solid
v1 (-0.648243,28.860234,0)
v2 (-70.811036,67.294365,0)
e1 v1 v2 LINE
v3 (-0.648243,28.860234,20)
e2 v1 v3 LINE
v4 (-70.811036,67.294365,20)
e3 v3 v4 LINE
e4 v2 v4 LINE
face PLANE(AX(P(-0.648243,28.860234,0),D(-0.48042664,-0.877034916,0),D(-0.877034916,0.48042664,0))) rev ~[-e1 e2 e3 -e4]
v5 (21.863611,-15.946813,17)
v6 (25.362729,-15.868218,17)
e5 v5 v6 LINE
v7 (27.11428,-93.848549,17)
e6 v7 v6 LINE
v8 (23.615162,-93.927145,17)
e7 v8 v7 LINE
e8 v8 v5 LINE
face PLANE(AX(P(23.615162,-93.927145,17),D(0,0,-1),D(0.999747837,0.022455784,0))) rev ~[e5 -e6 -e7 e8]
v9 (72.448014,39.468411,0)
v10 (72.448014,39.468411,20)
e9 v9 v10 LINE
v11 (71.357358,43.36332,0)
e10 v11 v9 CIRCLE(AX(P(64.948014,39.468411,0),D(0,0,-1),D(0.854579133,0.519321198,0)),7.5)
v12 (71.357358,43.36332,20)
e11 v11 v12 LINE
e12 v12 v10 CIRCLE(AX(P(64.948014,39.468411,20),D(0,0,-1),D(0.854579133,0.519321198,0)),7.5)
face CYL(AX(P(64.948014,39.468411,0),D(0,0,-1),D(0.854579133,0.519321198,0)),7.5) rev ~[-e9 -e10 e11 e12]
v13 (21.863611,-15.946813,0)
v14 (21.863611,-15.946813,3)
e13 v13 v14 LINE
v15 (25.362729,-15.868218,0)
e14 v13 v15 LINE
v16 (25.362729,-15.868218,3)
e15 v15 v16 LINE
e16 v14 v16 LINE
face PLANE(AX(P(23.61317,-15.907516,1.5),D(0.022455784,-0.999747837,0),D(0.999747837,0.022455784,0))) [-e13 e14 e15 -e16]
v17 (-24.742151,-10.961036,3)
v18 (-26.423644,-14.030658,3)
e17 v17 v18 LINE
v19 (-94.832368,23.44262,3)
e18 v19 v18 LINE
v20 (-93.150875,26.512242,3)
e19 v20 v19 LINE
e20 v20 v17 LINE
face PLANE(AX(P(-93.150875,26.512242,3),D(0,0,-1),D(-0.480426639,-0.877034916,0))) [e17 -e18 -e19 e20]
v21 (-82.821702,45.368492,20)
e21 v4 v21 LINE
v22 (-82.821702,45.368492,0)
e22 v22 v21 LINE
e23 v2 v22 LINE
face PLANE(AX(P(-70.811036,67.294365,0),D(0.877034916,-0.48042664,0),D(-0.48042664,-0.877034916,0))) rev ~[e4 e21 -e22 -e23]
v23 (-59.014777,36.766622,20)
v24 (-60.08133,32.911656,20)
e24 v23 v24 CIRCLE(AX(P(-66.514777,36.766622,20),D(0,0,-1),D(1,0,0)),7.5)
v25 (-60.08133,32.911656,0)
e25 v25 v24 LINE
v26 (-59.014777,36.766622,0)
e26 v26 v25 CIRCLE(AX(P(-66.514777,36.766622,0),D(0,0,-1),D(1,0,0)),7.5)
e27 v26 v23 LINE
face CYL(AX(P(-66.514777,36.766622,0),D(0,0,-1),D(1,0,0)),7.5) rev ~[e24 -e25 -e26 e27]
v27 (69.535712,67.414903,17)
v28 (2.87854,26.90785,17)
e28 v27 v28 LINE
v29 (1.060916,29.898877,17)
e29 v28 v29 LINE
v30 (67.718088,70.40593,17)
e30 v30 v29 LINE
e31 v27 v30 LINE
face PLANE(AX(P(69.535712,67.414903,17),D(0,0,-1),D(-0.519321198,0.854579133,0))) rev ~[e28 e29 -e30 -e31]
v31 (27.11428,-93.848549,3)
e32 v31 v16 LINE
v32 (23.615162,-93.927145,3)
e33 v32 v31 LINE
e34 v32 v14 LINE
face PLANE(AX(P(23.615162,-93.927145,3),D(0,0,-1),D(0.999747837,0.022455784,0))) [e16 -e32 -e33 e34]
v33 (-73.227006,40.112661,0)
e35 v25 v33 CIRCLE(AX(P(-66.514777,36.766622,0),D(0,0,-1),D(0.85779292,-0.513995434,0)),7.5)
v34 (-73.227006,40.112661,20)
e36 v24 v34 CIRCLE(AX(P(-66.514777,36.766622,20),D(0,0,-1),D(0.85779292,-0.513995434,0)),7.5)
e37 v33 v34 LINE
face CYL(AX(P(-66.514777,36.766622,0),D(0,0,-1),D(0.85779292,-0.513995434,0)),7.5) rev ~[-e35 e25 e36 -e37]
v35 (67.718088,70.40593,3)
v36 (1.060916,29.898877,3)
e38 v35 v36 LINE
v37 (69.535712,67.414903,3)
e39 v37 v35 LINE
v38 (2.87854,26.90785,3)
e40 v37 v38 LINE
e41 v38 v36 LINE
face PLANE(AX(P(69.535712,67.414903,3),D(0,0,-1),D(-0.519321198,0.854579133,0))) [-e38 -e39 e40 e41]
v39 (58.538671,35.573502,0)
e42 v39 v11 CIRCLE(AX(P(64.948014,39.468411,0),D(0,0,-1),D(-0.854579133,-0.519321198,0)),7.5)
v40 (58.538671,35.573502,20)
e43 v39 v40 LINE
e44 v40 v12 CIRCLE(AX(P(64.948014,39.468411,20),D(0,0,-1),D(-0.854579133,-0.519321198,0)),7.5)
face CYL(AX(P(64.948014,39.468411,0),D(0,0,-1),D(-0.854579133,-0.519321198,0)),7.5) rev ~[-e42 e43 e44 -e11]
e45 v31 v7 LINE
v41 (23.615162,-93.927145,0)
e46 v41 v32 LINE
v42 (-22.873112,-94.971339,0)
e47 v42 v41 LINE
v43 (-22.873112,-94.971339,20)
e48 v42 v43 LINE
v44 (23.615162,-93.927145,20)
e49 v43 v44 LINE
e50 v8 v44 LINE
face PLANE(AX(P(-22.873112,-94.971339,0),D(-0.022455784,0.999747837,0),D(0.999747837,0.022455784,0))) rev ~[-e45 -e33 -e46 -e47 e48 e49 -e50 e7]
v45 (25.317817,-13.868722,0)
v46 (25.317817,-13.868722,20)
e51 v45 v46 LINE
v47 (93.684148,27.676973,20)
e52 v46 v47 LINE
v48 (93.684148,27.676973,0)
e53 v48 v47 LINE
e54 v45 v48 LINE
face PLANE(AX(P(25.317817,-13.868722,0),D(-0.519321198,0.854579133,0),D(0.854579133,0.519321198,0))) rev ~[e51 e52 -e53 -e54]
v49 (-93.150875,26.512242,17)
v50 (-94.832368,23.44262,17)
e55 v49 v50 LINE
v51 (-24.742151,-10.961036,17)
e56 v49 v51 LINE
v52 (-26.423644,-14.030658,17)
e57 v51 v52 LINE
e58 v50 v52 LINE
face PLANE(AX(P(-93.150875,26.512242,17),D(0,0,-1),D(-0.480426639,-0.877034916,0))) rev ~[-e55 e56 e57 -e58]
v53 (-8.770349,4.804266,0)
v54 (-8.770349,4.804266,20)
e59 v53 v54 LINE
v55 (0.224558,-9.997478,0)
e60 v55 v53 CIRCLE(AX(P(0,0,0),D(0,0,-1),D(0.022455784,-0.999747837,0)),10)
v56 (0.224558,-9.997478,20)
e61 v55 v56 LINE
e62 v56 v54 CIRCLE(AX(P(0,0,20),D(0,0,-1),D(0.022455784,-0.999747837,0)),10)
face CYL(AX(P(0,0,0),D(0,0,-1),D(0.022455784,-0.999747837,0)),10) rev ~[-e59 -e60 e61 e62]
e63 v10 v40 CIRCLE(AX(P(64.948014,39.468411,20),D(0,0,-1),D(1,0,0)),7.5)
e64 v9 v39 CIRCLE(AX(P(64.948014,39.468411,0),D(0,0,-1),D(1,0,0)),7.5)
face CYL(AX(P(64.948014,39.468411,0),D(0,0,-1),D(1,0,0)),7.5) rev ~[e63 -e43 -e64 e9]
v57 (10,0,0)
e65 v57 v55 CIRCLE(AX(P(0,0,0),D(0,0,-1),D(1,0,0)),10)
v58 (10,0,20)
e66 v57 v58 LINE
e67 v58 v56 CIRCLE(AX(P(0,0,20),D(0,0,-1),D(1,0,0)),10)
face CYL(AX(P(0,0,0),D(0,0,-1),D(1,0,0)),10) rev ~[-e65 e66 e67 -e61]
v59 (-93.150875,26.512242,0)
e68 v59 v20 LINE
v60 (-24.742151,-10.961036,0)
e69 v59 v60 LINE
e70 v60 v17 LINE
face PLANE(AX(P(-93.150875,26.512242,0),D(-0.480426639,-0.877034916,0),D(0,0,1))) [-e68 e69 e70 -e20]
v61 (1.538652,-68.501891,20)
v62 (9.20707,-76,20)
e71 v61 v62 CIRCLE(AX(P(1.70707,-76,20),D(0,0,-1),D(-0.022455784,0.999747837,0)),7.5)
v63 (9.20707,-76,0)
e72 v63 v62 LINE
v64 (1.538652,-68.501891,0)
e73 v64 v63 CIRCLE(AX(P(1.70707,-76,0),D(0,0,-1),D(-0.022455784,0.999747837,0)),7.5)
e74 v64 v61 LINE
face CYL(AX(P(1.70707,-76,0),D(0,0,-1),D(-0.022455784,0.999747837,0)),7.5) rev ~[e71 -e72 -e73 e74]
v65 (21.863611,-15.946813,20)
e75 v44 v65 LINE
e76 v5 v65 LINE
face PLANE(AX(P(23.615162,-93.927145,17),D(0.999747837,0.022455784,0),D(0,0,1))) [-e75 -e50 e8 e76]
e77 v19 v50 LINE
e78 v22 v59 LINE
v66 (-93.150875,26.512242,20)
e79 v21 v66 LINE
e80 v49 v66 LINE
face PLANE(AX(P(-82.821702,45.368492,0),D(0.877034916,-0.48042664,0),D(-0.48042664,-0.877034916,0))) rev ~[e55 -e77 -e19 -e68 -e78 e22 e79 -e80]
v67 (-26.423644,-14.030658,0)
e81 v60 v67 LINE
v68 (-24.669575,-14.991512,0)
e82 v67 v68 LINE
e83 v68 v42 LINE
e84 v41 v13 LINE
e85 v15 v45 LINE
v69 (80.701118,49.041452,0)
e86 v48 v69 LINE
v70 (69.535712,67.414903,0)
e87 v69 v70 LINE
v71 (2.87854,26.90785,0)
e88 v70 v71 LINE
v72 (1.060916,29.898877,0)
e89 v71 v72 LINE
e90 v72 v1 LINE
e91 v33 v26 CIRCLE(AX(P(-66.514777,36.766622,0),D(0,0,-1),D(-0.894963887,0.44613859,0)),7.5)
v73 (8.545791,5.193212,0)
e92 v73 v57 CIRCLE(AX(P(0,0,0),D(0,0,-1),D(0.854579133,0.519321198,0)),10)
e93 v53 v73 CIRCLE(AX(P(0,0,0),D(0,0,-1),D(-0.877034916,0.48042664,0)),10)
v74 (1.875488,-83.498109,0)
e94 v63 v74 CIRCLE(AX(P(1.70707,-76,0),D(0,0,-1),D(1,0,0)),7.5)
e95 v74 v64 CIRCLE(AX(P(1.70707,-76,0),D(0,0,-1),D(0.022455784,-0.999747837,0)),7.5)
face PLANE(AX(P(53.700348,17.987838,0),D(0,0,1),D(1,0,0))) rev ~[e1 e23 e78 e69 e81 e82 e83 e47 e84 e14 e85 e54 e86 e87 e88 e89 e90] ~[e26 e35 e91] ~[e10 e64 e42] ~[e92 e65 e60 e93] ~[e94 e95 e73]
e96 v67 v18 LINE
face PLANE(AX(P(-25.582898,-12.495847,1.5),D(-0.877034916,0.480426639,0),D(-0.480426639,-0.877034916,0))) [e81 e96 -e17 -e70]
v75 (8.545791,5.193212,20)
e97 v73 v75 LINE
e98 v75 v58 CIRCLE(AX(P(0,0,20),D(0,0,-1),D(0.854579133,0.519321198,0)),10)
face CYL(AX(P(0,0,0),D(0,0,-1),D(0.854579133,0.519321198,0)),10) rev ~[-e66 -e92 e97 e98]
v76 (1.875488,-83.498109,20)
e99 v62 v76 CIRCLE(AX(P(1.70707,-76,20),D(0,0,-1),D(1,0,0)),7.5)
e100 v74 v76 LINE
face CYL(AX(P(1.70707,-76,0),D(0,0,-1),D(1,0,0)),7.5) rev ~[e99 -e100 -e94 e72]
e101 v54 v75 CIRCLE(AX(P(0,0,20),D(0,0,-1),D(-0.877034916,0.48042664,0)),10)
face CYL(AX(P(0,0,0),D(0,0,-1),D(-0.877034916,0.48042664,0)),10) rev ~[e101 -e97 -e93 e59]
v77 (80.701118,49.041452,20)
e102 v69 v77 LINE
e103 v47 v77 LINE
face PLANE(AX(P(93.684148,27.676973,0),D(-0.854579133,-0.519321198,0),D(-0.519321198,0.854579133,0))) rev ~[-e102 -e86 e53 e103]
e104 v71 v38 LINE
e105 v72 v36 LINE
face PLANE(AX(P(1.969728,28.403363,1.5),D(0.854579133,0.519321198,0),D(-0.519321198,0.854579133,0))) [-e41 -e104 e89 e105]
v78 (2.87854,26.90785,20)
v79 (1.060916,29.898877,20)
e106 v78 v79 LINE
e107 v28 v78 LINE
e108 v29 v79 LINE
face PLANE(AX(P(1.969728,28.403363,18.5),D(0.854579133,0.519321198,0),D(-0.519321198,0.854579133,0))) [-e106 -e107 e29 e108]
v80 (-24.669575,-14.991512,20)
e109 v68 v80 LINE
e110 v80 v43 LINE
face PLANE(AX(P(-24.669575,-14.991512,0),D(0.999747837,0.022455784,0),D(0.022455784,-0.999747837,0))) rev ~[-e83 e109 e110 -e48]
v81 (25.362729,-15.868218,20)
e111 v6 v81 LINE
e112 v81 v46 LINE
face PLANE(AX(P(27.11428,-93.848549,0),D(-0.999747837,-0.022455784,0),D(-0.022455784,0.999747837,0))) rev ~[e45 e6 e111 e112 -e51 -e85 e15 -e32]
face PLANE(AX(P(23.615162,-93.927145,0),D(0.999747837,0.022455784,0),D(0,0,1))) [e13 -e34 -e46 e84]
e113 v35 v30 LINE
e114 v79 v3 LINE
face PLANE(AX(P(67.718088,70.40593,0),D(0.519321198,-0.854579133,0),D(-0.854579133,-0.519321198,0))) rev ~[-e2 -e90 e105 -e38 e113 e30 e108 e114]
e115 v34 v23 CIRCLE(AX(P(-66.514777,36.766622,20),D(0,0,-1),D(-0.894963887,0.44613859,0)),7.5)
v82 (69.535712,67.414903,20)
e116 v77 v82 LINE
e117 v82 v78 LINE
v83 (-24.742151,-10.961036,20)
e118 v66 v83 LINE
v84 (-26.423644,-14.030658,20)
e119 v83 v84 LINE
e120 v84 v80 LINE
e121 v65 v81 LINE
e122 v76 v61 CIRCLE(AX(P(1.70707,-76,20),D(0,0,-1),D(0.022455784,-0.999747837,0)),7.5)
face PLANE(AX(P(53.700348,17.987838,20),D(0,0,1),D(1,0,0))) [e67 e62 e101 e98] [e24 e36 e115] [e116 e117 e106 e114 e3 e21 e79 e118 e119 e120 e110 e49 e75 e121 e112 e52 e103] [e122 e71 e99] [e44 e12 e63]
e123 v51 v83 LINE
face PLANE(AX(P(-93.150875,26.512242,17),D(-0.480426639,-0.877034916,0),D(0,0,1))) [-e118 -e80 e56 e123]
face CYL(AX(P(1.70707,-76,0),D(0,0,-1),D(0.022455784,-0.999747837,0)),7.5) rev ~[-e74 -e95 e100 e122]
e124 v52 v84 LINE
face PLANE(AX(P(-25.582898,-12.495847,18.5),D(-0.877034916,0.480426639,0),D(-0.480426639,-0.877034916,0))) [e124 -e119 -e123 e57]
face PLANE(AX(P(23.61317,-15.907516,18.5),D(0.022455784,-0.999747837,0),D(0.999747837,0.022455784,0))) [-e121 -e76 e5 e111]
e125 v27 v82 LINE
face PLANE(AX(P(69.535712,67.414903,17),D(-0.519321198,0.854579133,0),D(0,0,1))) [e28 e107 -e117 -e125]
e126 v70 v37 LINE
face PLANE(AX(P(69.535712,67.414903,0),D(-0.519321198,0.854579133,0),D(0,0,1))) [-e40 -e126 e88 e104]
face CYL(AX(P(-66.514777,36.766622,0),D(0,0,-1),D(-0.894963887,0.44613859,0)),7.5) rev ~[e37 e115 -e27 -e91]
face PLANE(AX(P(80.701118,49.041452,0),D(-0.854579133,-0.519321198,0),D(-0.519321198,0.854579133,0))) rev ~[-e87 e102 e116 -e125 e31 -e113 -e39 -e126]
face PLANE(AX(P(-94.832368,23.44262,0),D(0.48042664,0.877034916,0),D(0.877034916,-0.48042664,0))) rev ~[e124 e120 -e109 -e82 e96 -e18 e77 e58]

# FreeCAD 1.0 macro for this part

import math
import FreeCAD as App
import Part
import Sketcher
from FreeCAD import Vector


def add_polygon(sketch, points):
    """Adds a closed chain of lines whose ends are joined by coincident constraints."""
    first, n = sketch.GeometryCount, len(points)
    for a, b in zip(points, points[1:] + points[:1]):
        sketch.addGeometry(Part.LineSegment(App.Vector(*a, 0), App.Vector(*b, 0)), False)
    for i in range(n):
        sketch.addConstraint(Sketcher.Constraint("Coincident", first + i, 2, first + (i + 1) % n, 1))

doc = App.newDocument("Part")
body = doc.addObject("PartDesign::Body", "Body")

sketch1 = doc.addObject("Sketcher::SketchObject", "Sketch")
body.addObject(sketch1)
sketch1.AttachmentSupport = (doc.XY_Plane, [""])
sketch1.MapMode = "FlatFace"
add_polygon(sketch1, [(27.11428, -93.848549), (25.317817, -13.868722), (93.684148, 27.676973), (80.701118, 49.041452), (67.718088, 70.40593), (-0.648243, 28.860234), (-70.811036, 67.294365), (-82.821702, 45.368492), (-94.832368, 23.44262), (-24.669575, -14.991512), (-22.873112, -94.971339)])
sketch1.addGeometry(Part.ArcOfCircle(Part.Circle(Vector(1.70707, -76, 0), Vector(0, 0, 1), 7.5), math.radians(91.28673), math.radians(271.28673)), False)
sketch1.addGeometry(Part.ArcOfCircle(Part.Circle(Vector(1.70707, -76, 0), Vector(0, 0, 1), 7.5), math.radians(0), math.radians(91.28673)), False)
sketch1.addGeometry(Part.ArcOfCircle(Part.Circle(Vector(1.70707, -76, 0), Vector(0, 0, 1), 7.5), math.radians(-88.71327), math.radians(0)), False)
sketch1.addGeometry(Part.ArcOfCircle(Part.Circle(Vector(-66.514777, 36.766622, 0), Vector(0, 0, 1), 7.5), math.radians(153.503792), math.radians(329.069668)), False)
sketch1.addGeometry(Part.ArcOfCircle(Part.Circle(Vector(-66.514777, 36.766622, 0), Vector(0, 0, 1), 7.5), math.radians(0), math.radians(153.503792)), False)
sketch1.addGeometry(Part.ArcOfCircle(Part.Circle(Vector(-66.514777, 36.766622, 0), Vector(0, 0, 1), 7.5), math.radians(-30.930332), math.radians(0)), False)
sketch1.addGeometry(Part.ArcOfCircle(Part.Circle(Vector(0, 0, 0), Vector(0, 0, 1), 10), math.radians(31.28673), math.radians(151.28673)), False)
sketch1.addGeometry(Part.ArcOfCircle(Part.Circle(Vector(0, 0, 0), Vector(0, 0, 1), 10), math.radians(0), math.radians(31.28673)), False)
sketch1.addGeometry(Part.ArcOfCircle(Part.Circle(Vector(0, 0, 0), Vector(0, 0, 1), 10), math.radians(-88.71327), math.radians(0)), False)
sketch1.addGeometry(Part.ArcOfCircle(Part.Circle(Vector(0, 0, 0), Vector(0, 0, 1), 10), math.radians(151.28673), math.radians(271.28673)), False)
sketch1.addGeometry(Part.ArcOfCircle(Part.Circle(Vector(64.948014, 39.468411, 0), Vector(0, 0, 1), 7.5), math.radians(0), math.radians(31.28673)), False)
sketch1.addGeometry(Part.ArcOfCircle(Part.Circle(Vector(64.948014, 39.468411, 0), Vector(0, 0, 1), 7.5), math.radians(-148.71327), math.radians(0)), False)
sketch1.addGeometry(Part.ArcOfCircle(Part.Circle(Vector(64.948014, 39.468411, 0), Vector(0, 0, 1), 7.5), math.radians(31.28673), math.radians(211.28673)), False)
sketch1.addConstraint([
    Sketcher.Constraint("Tangent", 11, 1, 12, 2),
    Sketcher.Constraint("Tangent", 12, 1, 13, 2),
    Sketcher.Constraint("Tangent", 13, 1, 11, 2),
    Sketcher.Constraint("Tangent", 14, 1, 15, 2),
    Sketcher.Constraint("Tangent", 15, 1, 16, 2),
    Sketcher.Constraint("Tangent", 16, 1, 14, 2),
    Sketcher.Constraint("Tangent", 17, 1, 18, 2),
    Sketcher.Constraint("Tangent", 18, 1, 19, 2),
    Sketcher.Constraint("Tangent", 19, 1, 20, 2),
    Sketcher.Constraint("Tangent", 20, 1, 17, 2),
    Sketcher.Constraint("Tangent", 21, 1, 22, 2),
    Sketcher.Constraint("Tangent", 22, 1, 23, 2),
    Sketcher.Constraint("Tangent", 23, 1, 21, 2),
    Sketcher.Constraint("Coincident", 17, 3, -1, 1),
    Sketcher.Constraint("Equal", 13, 14),
    Sketcher.Constraint("Equal", 17, 18),
    Sketcher.Constraint("Equal", 16, 21),
    Sketcher.Constraint("PointOnObject", 18, 1, -1),
    Sketcher.Constraint("Perpendicular", 1, 2),
    Sketcher.Constraint("Parallel", 2, 3),
    Sketcher.Constraint("Perpendicular", 3, 4),
    Sketcher.Constraint("Perpendicular", 5, 6),
    Sketcher.Constraint("Parallel", 6, 7),
    Sketcher.Constraint("Perpendicular", 7, 8),
    Sketcher.Constraint("Parallel", 0, 9),
    Sketcher.Constraint("Perpendicular", 9, 10),
    Sketcher.Constraint("Horizontal", 13, 3, 12, 1),
    Sketcher.Constraint("Horizontal", 16, 3, 15, 1),
    Sketcher.Constraint("Horizontal", 23, 3, 21, 1),
    Sketcher.Constraint("Equal", 0, 1),
    Sketcher.Constraint("Equal", 2, 3),
    Sketcher.Constraint("Equal", 1, 4),
    Sketcher.Constraint("Equal", 4, 5),
    Sketcher.Constraint("Equal", 3, 6),
    Sketcher.Constraint("Equal", 6, 7),
    Sketcher.Constraint("Equal", 5, 8),
    Sketcher.Constraint("Equal", 8, 9),
    Sketcher.Constraint("Radius", 17, 10.0),
    Sketcher.Constraint("Radius", 11, 7.5),
    Sketcher.Constraint("Distance", 0, 80.0),
    Sketcher.Constraint("Distance", 2, 25.0),
    Sketcher.Constraint("Distance", 10, 50.0),
    Sketcher.Constraint("DistanceY", 11, 3, -1, 1, 76.0),
    Sketcher.Constraint("DistanceX", 6, 2, -1, 1, 82.821702),
    Sketcher.Constraint("DistanceX", 0, 2, 2, 2, 55.383301),
    Sketcher.Constraint("DistanceX", -1, 1, 11, 3, 1.70707),
    Sketcher.Constraint("DistanceY", -1, 1, 14, 3, 36.766622),
    Sketcher.Constraint("DistanceY", -1, 1, 21, 3, 39.468411),
    Sketcher.Constraint("DistanceY", -1, 1, 2, 2, 49.041452),
    Sketcher.Constraint("DistanceX", -1, 1, 11, 1, 1.538652),
    Sketcher.Constraint("DistanceX", -1, 1, 13, 1, 1.875488),
    Sketcher.Constraint("DistanceY", -1, 1, 14, 1, 40.112661),
    Sketcher.Constraint("DistanceX", 16, 1, -1, 1, 60.08133),
    Sketcher.Constraint("DistanceX", -1, 1, 17, 1, 8.545791),
    Sketcher.Constraint("DistanceY", 19, 1, -1, 1, 9.997478),
    Sketcher.Constraint("DistanceX", 20, 1, -1, 1, 8.770349),
    Sketcher.Constraint("DistanceX", -1, 1, 22, 1, 58.538671),
    Sketcher.Constraint("DistanceY", -1, 1, 23, 1, 43.36332),
    Sketcher.Constraint("DistanceX", 16, 3, 21, 3, 131.462791),
    Sketcher.Constraint("DistanceX", 5, 2, 16, 3, 4.296259),
])
pad1 = doc.addObject("PartDesign::Pad", "Pad")
body.addObject(pad1)
pad1.Profile = sketch1
pad1.Length = 20

sketch2 = doc.addObject("Sketcher::SketchObject", "Sketch001")
body.addObject(sketch2)
sketch2.Placement = App.Placement(Vector(-82.821702, 45.368492, 0), App.Rotation(Vector(-0.48042664, -0.877034916, 0), Vector(0, 0, 1), Vector(-0.877034916, 0.48042664, 0), "ZXY"))
add_polygon(sketch2, [(21.5, 20), (21.5, 17), (25, 17), (25, 20)])
add_polygon(sketch2, [(21.5, 3), (21.5, 0), (25, 0), (25, 3)])
sketch2.addConstraint([
    Sketcher.Constraint("Vertical", 0),
    Sketcher.Constraint("Horizontal", 1),
    Sketcher.Constraint("Vertical", 2),
    Sketcher.Constraint("Horizontal", 3),
    Sketcher.Constraint("Vertical", 4),
    Sketcher.Constraint("Horizontal", 5),
    Sketcher.Constraint("Vertical", 6),
    Sketcher.Constraint("Horizontal", 7),
    Sketcher.Constraint("PointOnObject", 4, 2, -1),
    Sketcher.Constraint("Vertical", 3, 2, 4, 2),
    Sketcher.Constraint("Vertical", 2, 2, 5, 2),
    Sketcher.Constraint("Equal", 2, 4),
    Sketcher.Constraint("DistanceY", 0, 2, 0, 1, 3.0),
    Sketcher.Constraint("DistanceX", 1, 1, 1, 2, 3.5),
    Sketcher.Constraint("DistanceY", -1, 1, 0, 2, 17.0),
    Sketcher.Constraint("DistanceX", -1, 1, 1, 2, 25.0),
])
pocket1 = doc.addObject("PartDesign::Pocket", "Pocket")
body.addObject(pocket1)
pocket1.Profile = sketch2
pocket1.Length = 78

sketch3 = doc.addObject("Sketcher::SketchObject", "Sketch002")
body.addObject(sketch3)
sketch3.Placement = App.Placement(Vector(2.120584, -94.409944, 0), App.Rotation(Vector(0.999747837, 0.022455784, 0), Vector(0, 0, 1), Vector(0.022455784, -0.999747837, 0), "ZXY"))
add_polygon(sketch3, [(21.5, 20), (21.5, 17), (25, 17), (25, 20)])
add_polygon(sketch3, [(21.5, 3), (21.5, 0), (25, 0), (25, 3)])
sketch3.addConstraint([
    Sketcher.Constraint("Vertical", 0),
    Sketcher.Constraint("Horizontal", 1),
    Sketcher.Constraint("Vertical", 2),
    Sketcher.Constraint("Horizontal", 3),
    Sketcher.Constraint("Vertical", 4),
    Sketcher.Constraint("Horizontal", 5),
    Sketcher.Constraint("Vertical", 6),
    Sketcher.Constraint("Horizontal", 7),
    Sketcher.Constraint("PointOnObject", 4, 2, -1),
    Sketcher.Constraint("Vertical", 3, 2, 4, 2),
    Sketcher.Constraint("Vertical", 2, 2, 5, 2),
    Sketcher.Constraint("Equal", 2, 4),
    Sketcher.Constraint("DistanceY", 0, 2, 0, 1, 3.0),
    Sketcher.Constraint("DistanceX", 1, 1, 1, 2, 3.5),
    Sketcher.Constraint("DistanceY", -1, 1, 0, 2, 17.0),
    Sketcher.Constraint("DistanceX", -1, 1, 1, 2, 25.0),
])
pocket2 = doc.addObject("PartDesign::Pocket", "Pocket001")
body.addObject(pocket2)
pocket2.Profile = sketch3
pocket2.Length = 78

sketch4 = doc.addObject("Sketcher::SketchObject", "Sketch003")
body.addObject(sketch4)
sketch4.Placement = App.Placement(Vector(80.701118, 49.041452, 0), App.Rotation(Vector(-0.519321198, 0.854579133, 0), Vector(0, 0, 1.000000001), Vector(0.854579133, 0.519321198, 0), "ZXY"))
add_polygon(sketch4, [(21.5, 20), (21.5, 17), (25, 17), (25, 20)])
add_polygon(sketch4, [(21.5, 3), (21.5, 0), (25, 0), (25, 3)])
sketch4.addConstraint([
    Sketcher.Constraint("Vertical", 0),
    Sketcher.Constraint("Horizontal", 1),
    Sketcher.Constraint("Vertical", 2),
    Sketcher.Constraint("Horizontal", 3),
    Sketcher.Constraint("Vertical", 4),
    Sketcher.Constraint("Horizontal", 5),
    Sketcher.Constraint("Vertical", 6),
    Sketcher.Constraint("Horizontal", 7),
    Sketcher.Constraint("PointOnObject", 4, 2, -1),
    Sketcher.Constraint("Vertical", 3, 2, 4, 2),
    Sketcher.Constraint("Vertical", 2, 2, 5, 2),
    Sketcher.Constraint("Equal", 2, 4),
    Sketcher.Constraint("DistanceY", 0, 2, 0, 1, 3.0),
    Sketcher.Constraint("DistanceX", 1, 1, 1, 2, 3.5),
    Sketcher.Constraint("DistanceY", -1, 1, 0, 2, 17.0),
    Sketcher.Constraint("DistanceX", -1, 1, 1, 2, 25.0),
])
pocket3 = doc.addObject("PartDesign::Pocket", "Pocket002")
body.addObject(pocket3)
pocket3.Profile = sketch4
pocket3.Length = 78

doc.recompute()
